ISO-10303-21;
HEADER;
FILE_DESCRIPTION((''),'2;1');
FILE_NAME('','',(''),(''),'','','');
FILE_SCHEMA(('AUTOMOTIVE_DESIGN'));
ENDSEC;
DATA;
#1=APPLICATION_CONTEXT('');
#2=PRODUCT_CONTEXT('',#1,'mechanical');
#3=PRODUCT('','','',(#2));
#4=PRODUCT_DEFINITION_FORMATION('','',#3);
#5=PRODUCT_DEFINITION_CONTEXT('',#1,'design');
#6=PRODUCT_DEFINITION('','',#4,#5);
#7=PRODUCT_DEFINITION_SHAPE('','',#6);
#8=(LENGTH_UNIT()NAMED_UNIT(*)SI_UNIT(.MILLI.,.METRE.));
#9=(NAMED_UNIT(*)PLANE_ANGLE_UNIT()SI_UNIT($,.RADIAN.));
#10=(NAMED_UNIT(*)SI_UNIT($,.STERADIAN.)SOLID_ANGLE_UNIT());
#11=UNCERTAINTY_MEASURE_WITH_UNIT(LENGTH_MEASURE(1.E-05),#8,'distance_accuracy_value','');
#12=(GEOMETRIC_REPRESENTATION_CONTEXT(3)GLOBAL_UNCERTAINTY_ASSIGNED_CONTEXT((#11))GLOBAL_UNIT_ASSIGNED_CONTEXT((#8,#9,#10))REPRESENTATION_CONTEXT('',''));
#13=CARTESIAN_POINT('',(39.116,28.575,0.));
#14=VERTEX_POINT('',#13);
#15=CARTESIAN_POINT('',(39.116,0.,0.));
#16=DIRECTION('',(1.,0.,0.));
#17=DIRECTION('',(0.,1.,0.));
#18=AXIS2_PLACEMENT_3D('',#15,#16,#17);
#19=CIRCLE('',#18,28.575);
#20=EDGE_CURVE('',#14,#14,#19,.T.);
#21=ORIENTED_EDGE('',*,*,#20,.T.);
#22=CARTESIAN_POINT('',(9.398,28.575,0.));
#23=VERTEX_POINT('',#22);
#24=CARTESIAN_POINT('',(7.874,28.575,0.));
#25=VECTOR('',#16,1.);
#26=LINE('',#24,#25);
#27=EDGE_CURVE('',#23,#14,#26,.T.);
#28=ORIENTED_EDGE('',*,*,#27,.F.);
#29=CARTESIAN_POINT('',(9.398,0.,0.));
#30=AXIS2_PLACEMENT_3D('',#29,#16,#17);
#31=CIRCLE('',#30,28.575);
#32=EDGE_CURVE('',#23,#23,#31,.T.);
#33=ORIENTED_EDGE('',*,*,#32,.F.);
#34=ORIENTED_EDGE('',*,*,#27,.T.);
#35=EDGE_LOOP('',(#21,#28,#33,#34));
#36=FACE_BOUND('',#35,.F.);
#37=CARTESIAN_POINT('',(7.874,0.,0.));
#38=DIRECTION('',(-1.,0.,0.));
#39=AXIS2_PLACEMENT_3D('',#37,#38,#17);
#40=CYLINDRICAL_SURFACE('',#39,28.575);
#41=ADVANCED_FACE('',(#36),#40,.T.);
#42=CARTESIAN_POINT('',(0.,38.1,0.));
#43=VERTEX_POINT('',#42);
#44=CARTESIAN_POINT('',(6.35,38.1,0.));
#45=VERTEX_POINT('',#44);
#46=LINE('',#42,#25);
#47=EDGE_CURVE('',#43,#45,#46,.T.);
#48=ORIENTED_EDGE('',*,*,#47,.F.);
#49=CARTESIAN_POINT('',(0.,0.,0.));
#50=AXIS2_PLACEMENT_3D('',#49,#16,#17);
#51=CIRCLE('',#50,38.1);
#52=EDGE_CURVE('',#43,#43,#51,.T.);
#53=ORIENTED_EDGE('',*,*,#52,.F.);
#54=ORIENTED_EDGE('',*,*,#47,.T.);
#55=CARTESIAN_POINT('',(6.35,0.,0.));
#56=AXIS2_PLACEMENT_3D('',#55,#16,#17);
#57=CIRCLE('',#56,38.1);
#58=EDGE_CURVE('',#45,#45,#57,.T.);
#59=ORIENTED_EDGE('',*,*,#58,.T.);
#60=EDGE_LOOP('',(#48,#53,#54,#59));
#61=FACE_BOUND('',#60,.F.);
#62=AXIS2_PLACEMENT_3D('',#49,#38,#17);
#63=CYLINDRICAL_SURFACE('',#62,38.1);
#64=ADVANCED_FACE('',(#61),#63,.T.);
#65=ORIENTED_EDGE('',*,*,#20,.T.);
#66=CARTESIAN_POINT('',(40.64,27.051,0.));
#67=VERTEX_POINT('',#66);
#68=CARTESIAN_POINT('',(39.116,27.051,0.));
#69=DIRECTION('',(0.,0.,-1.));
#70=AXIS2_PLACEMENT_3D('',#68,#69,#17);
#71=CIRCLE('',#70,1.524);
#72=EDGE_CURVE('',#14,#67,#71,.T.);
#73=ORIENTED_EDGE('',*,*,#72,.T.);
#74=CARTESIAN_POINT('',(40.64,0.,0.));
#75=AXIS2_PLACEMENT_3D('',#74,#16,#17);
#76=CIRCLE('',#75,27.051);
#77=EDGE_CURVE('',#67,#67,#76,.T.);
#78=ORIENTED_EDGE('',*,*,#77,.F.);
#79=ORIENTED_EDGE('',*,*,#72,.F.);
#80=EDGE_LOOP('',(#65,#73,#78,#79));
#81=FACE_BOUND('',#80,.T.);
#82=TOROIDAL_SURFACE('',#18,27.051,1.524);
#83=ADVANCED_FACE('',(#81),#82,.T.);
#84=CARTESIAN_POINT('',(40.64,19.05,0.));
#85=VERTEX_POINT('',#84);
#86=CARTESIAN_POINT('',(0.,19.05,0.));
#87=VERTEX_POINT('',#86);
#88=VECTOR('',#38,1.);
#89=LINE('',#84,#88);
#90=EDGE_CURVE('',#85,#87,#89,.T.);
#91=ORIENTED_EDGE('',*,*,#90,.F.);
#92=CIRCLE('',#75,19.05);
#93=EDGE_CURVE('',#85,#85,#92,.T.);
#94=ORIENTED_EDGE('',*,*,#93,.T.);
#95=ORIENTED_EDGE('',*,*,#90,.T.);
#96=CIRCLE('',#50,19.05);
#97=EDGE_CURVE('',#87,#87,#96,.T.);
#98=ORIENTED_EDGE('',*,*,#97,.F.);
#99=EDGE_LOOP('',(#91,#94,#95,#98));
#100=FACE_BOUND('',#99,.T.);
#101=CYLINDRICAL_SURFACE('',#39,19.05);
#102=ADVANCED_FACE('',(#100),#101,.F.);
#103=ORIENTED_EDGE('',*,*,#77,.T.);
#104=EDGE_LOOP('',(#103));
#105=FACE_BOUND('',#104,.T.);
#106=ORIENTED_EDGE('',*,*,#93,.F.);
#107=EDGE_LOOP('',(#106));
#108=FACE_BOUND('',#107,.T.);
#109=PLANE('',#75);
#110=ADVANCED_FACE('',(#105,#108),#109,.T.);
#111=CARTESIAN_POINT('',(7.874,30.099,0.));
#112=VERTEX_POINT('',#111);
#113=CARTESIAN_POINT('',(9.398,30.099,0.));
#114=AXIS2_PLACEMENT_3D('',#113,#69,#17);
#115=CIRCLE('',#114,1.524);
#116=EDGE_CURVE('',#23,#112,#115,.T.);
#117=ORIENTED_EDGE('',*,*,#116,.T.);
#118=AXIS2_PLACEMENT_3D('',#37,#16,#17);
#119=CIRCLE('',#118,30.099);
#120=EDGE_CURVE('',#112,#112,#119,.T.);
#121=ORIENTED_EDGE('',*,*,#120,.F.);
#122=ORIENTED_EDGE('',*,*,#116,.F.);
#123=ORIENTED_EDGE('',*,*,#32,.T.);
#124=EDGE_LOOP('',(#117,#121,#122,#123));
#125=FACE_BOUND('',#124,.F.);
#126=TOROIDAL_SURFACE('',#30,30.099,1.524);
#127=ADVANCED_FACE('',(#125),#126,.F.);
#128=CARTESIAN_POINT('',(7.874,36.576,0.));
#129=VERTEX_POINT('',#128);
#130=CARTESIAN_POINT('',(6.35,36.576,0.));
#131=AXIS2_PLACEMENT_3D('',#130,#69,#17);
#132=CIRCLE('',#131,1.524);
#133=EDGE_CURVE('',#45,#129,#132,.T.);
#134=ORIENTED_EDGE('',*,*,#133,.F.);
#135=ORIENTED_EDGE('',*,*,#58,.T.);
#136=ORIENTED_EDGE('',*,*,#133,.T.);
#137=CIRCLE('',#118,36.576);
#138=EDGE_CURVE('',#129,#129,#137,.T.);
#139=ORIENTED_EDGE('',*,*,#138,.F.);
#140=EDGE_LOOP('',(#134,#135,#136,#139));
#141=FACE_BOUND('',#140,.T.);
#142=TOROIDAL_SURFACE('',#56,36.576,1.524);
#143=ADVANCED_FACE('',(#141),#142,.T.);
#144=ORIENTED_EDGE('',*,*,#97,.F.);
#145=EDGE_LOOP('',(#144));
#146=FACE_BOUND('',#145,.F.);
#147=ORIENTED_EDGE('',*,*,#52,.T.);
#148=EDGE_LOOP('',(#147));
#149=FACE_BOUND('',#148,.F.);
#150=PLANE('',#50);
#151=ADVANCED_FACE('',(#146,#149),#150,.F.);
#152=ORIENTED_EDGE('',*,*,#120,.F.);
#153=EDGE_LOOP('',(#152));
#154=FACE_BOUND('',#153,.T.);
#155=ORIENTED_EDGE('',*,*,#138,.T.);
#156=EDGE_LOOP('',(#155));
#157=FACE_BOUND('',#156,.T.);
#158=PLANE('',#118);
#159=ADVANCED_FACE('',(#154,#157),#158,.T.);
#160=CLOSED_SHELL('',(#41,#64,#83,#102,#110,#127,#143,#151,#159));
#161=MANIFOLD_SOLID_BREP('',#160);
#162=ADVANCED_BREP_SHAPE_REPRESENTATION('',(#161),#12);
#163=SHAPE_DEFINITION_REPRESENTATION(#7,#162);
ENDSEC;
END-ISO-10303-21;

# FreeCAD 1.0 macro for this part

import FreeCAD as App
import Part
import Sketcher

V = App.Vector
Q = App.Units.Quantity


def edges_at(feature, points):
    """Names of the edges that pass closest to the given points."""
    edges = feature.Shape.Edges
    near = lambda p: min(range(len(edges)), key=lambda i: edges[i].distToShape(Part.Vertex(*p))[0])
    return sorted({f"Edge{near(p) + 1}" for p in points})

doc = App.newDocument("Part")
body = doc.addObject("PartDesign::Body", "Body")

sketch1 = doc.addObject("Sketcher::SketchObject", "Sketch")
body.addObject(sketch1)
sketch1.AttachmentSupport = (doc.YZ_Plane, [""])
sketch1.MapMode = "FlatFace"
sketch1.addGeometry(Part.Circle(V(0, 0, 0), V(0, 0, 1), 38), False)
sketch1.addGeometry(Part.Circle(V(0, 0, 0), V(0, 0, 1), 19), False)
sketch1.addConstraint(Sketcher.Constraint("Coincident", 0, 3, -1, 1))
sketch1.addConstraint(Sketcher.Constraint("Coincident", 1, 3, -1, 1))
sketch1.addConstraint(Sketcher.Constraint("Diameter", 0, Q("3 in")))
sketch1.addConstraint(Sketcher.Constraint("Diameter", 1, Q("1.5 in")))
pad1 = doc.addObject("PartDesign::Pad", "Pad")
body.addObject(pad1)
pad1.Profile = sketch1
pad1.Length = Q("0.31 in")

sketch2 = doc.addObject("Sketcher::SketchObject", "Sketch001")
body.addObject(sketch2)
sketch2.AttachmentSupport = (doc.YZ_Plane, [""])
sketch2.MapMode = "FlatFace"
sketch2.AttachmentOffset = App.Placement(V(0, 0, 0.31 * 25.4), App.Rotation())
sketch2.addGeometry(Part.Circle(V(0, 0, 0), V(0, 0, 1), 29), False)
sketch2.addGeometry(Part.Circle(V(0, 0, 0), V(0, 0, 1), 19), False)
sketch2.addConstraint(Sketcher.Constraint("Coincident", 0, 3, -1, 1))
sketch2.addConstraint(Sketcher.Constraint("Coincident", 1, 3, -1, 1))
sketch2.addConstraint(Sketcher.Constraint("Diameter", 1, Q("1.5 in")))
sketch2.addConstraint(Sketcher.Constraint("Diameter", 0, Q("2.25 in")))
pad2 = doc.addObject("PartDesign::Pad", "Pad001")
body.addObject(pad2)
pad2.Profile = sketch2
pad2.Length = Q("1.29 in")
doc.recompute()

fillet = doc.addObject("PartDesign::Fillet", "Fillet")
body.addObject(fillet)
fillet.Base = (pad2, edges_at(pad2, [(7.874, -38.1, 0), (7.874, -28.575, 0), (40.64, -28.575, 0)]))
fillet.Radius = Q("0.06 in")

doc.recompute()
